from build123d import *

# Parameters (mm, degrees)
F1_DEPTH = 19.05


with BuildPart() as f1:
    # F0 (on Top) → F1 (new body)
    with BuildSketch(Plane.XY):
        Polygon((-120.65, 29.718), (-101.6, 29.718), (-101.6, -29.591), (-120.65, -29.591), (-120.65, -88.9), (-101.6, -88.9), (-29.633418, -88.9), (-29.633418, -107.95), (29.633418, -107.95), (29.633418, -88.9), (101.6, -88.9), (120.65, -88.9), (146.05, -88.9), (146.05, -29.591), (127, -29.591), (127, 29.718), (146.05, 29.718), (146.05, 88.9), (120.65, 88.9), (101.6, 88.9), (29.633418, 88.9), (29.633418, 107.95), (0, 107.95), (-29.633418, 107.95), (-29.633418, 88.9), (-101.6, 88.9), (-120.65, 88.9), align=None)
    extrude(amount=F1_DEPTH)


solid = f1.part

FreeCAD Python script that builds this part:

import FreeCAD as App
import Part
import Sketcher
Q = App.Units.Quantity


def add_polygon(sketch, points):
    """Adds a closed chain of lines whose ends are joined by coincident constraints."""
    first, n = sketch.GeometryCount, len(points)
    for a, b in zip(points, points[1:] + points[:1]):
        sketch.addGeometry(Part.LineSegment(App.Vector(*a, 0), App.Vector(*b, 0)), False)
    for i in range(n):
        sketch.addConstraint(Sketcher.Constraint("Coincident", first + i, 2, first + (i + 1) % n, 1))

doc = App.newDocument("Part")
params = doc.addObject("Spreadsheet::Sheet", "Params")
for row, (alias, value) in enumerate([
    ("sketch1_width", "0.75 in"),
    ("sketch1_height", "2.33 in"),
    ("pad1_length", "0.75 in"),
], start=1):
    params.set(f"A{row}", alias)
    params.set(f"B{row}", "=" + value)
    params.setAlias(f"B{row}", alias)

body = doc.addObject("PartDesign::Body", "Body")

# Sketch on XY plane
sketch1 = body.newObject("Sketcher::SketchObject", "Sketch")
sketch1.AttachmentSupport = (doc.getObject("XY_Plane"), [""])
sketch1.MapMode = "FlatFace"
add_polygon(sketch1, [(-121, 30), (-102, 30), (-102, -30), (-121, -30), (-121, -89), (-30, -89), (-30, -108), (30, -108), (30, -89), (146, -89), (146, -30), (127, -30), (127, 30), (146, 30), (146, 89), (30, 89), (30, 108), (-30, 108), (-30, 89), (-121, 89)])  # lines 0-19
sketch1.addConstraint([
    Sketcher.Constraint("Horizontal", 0),
    Sketcher.Constraint("Vertical", 1),
    Sketcher.Constraint("Horizontal", 2),
    Sketcher.Constraint("Vertical", 3),
    Sketcher.Constraint("Horizontal", 4),
    Sketcher.Constraint("Vertical", 5),
    Sketcher.Constraint("Horizontal", 6),
    Sketcher.Constraint("Vertical", 7),
    Sketcher.Constraint("Horizontal", 8),
    Sketcher.Constraint("Vertical", 9),
    Sketcher.Constraint("Horizontal", 10),
    Sketcher.Constraint("Vertical", 11),
    Sketcher.Constraint("Horizontal", 12),
    Sketcher.Constraint("Vertical", 13),
    Sketcher.Constraint("Horizontal", 14),
    Sketcher.Constraint("Vertical", 15),
    Sketcher.Constraint("Horizontal", 16),
    Sketcher.Constraint("Vertical", 17),
    Sketcher.Constraint("Horizontal", 18),
    Sketcher.Constraint("Vertical", 19),
    Sketcher.Constraint("Symmetric", 4, 2, 14, 2, -1, 1),
    Sketcher.Constraint("Symmetric", 6, 2, 16, 2, -1, 1),
    Sketcher.Constraint("Symmetric", 4, 2, 7, 2, -2),
    Sketcher.Constraint("Symmetric", 3, 2, 18, 2, -1),
    Sketcher.Constraint("Horizontal", 2, 2, 9, 2),
    Sketcher.Constraint("Horizontal", 0, 2, 11, 2),
    Sketcher.Constraint("Vertical", 9, 2, 12, 2),
    Sketcher.Constraint("Equal", 2, 10),
    Sketcher.Constraint("Equal", 1, 3),
    Sketcher.Constraint("Equal", 12, 5),
    Sketcher.Constraint("DistanceX", 0, 2, -1, 1, Q("4 in")),
    Sketcher.Constraint("DistanceX", -1, 1, 10, 2, Q("5 in")),
    Sketcher.Constraint("DistanceY", 8, 2, 13, 2, Q("7 in")),
    Sketcher.Constraint("DistanceX", 0, 1, 0, 2, Q("0.75 in")),
    Sketcher.Constraint("DistanceY", 13, 1, 13, 2, Q("2.33 in")),
    Sketcher.Constraint("DistanceX", 4, 1, 4, 2, Q("91.016582 mm")),
])
sketch1.setExpression("Constraints[53]", "Params.sketch1_width")
sketch1.setExpression("Constraints[54]", "Params.sketch1_height")
pad1 = body.newObject("PartDesign::Pad", "Pad")
pad1.Profile = sketch1
pad1.setExpression("Length", "Params.pad1_length")

doc.recompute()
